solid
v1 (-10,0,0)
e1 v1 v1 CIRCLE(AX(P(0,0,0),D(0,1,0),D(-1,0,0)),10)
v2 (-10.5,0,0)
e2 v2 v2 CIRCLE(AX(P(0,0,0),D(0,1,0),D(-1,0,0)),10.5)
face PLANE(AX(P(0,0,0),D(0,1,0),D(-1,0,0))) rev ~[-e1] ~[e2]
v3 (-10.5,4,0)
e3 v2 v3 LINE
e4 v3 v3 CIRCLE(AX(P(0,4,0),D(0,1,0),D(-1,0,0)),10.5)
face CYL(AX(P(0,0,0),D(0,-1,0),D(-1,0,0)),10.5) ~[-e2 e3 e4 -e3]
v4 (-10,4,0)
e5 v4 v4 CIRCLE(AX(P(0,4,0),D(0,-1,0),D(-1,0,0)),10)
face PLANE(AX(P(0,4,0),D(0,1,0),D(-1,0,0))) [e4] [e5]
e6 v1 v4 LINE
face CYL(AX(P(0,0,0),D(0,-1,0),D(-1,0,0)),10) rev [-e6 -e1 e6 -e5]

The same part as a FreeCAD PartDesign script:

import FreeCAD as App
import Part
import Sketcher

V = App.Vector
Q = App.Units.Quantity

doc = App.newDocument("Part")
body = doc.addObject("PartDesign::Body", "Body")

# Sketch on XZ plane
sketch1 = body.newObject("Sketcher::SketchObject", "Sketch")
sketch1.AttachmentSupport = (doc.getObject("XZ_Plane"), [""])
sketch1.MapMode = "FlatFace"
sketch1.addGeometry(Part.Circle(V(0, 0, 0), V(0, 0, 1), 10), False)
sketch1.addConstraint([
    Sketcher.Constraint("Coincident", 0, 3, -1, 1),
    Sketcher.Constraint("Diameter", 0, Q("21 mm")),
])
pad1 = body.newObject("PartDesign::Pad", "Pad")
pad1.Profile = sketch1
pad1.Length = 4
pad1.Reversed = True

# Sketch on XZ plane
sketch2 = body.newObject("Sketcher::SketchObject", "Sketch001")
sketch2.AttachmentSupport = (doc.getObject("XZ_Plane"), [""])
sketch2.MapMode = "FlatFace"
sketch2.addGeometry(Part.Circle(V(0, 0, 0), V(0, 0, 1), 10), False)
sketch2.addConstraint([
    Sketcher.Constraint("Coincident", 0, 3, -1, 1),
    Sketcher.Constraint("Diameter", 0, Q("20 mm")),
])
pocket1 = body.newObject("PartDesign::Pocket", "Pocket")
pocket1.Profile = sketch2
pocket1.Length = 10

doc.recompute()
